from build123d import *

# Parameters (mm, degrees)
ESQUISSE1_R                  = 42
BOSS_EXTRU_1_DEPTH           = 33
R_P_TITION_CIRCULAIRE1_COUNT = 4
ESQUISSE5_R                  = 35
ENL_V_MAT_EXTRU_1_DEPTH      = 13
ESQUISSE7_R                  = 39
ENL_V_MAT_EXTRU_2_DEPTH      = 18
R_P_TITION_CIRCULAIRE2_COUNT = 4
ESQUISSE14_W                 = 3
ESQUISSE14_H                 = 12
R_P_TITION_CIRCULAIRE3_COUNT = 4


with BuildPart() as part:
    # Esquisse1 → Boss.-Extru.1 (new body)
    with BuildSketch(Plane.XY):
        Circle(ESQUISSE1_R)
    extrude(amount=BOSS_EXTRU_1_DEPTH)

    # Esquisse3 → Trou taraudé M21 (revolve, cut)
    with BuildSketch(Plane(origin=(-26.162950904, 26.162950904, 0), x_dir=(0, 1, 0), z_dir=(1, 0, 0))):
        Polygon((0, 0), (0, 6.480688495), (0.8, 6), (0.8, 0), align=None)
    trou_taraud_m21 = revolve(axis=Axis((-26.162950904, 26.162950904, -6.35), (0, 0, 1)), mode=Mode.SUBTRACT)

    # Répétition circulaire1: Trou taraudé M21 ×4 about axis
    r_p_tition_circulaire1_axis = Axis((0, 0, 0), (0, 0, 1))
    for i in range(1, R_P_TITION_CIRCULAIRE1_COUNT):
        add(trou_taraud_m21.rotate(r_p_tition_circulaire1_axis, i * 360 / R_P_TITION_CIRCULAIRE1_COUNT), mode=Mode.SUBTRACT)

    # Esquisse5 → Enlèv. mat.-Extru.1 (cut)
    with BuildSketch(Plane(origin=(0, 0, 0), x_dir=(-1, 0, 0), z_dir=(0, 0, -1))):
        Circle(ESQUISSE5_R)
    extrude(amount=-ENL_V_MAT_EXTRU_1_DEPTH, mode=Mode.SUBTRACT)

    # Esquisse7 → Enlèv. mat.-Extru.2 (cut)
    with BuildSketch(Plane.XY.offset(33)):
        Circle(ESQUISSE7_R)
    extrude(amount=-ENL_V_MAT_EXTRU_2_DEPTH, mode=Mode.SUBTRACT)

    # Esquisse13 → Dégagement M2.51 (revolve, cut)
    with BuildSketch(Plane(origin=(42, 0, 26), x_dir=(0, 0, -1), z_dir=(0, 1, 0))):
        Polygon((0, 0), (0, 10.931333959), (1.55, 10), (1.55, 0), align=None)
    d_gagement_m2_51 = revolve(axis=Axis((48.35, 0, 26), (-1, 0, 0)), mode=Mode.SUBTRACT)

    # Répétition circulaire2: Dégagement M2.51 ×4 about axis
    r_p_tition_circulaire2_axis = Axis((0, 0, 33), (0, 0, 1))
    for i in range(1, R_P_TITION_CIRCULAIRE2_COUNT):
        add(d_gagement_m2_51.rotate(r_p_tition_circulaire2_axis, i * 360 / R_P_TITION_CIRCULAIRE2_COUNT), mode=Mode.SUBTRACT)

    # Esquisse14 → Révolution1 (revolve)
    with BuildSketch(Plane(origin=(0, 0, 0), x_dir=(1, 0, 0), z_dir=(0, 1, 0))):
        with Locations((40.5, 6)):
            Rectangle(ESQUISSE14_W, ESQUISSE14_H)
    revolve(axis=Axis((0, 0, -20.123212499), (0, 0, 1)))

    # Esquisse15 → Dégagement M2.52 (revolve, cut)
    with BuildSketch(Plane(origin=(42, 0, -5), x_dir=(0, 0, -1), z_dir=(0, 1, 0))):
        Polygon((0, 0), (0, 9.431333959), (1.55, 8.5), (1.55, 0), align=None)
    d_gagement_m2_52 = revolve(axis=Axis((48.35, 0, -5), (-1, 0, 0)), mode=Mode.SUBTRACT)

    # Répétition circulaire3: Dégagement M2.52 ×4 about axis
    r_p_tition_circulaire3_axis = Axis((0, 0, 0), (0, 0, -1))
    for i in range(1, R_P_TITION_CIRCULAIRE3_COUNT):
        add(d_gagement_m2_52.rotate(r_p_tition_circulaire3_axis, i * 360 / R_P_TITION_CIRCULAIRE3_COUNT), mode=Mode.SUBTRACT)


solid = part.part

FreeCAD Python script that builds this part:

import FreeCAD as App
import Part
import Sketcher
from FreeCAD import Vector
Q = App.Units.Quantity


def add_polygon(sketch, points):
    """Adds a closed chain of lines whose ends are joined by coincident constraints."""
    first, n = sketch.GeometryCount, len(points)
    for a, b in zip(points, points[1:] + points[:1]):
        sketch.addGeometry(Part.LineSegment(App.Vector(*a, 0), App.Vector(*b, 0)), False)
    for i in range(n):
        sketch.addConstraint(Sketcher.Constraint("Coincident", first + i, 2, first + (i + 1) % n, 1))

doc = App.newDocument("Part")
body = doc.addObject("PartDesign::Body", "Body")

# Sketch on XY plane
sketch1 = body.newObject("Sketcher::SketchObject", "Sketch")
sketch1.AttachmentSupport = (doc.getObject("XY_Plane"), [""])
sketch1.MapMode = "FlatFace"
sketch1.addGeometry(Part.Circle(Vector(0, 0, 0), Vector(0, 0, 1), 42), False)
sketch1.addConstraint([
    Sketcher.Constraint("Coincident", 0, 3, -1, 1),
    Sketcher.Constraint("Diameter", 0, 84.0),
])
pad1 = body.newObject("PartDesign::Pad", "Pad")
pad1.Profile = sketch1
pad1.Length = 33

# Sketch on YZ plane
sketch2 = body.newObject("Sketcher::SketchObject", "Sketch001")
sketch2.AttachmentSupport = (doc.getObject("YZ_Plane"), [""])
sketch2.MapMode = "FlatFace"
sketch2.AttachmentOffset = App.Placement(Vector(0, 0, -26.162951), App.Rotation())
add_polygon(sketch2, [(26.2, 6.5), (26.2, 0), (27, 0), (27, 6)])  # lines 0-3
sketch2.addGeometry(Part.LineSegment(Vector(26.2, 0, 0), Vector(26.2, 6.5, 0)), True)  # axis
sketch2.addConstraint([
    Sketcher.Constraint("Vertical", 0),
    Sketcher.Constraint("Horizontal", 1),
    Sketcher.Constraint("Vertical", 2),
    Sketcher.Constraint("Vertical", 4),
    Sketcher.Constraint("Coincident", 4, 1, 0, 2),
    Sketcher.Constraint("PointOnObject", 0, 2, -1),
    Sketcher.Constraint("Equal", 0, 4),
    Sketcher.Constraint("DistanceY", 2, 1, 2, 2, 6.0),
    Sketcher.Constraint("Angle", 3, Q("149 deg")),
    Sketcher.Constraint("DistanceX", 1, 1, 1, 2, 0.8),
    Sketcher.Constraint("DistanceX", -1, 1, 0, 2, 26.162951),
])
groove = body.newObject("PartDesign::Groove", "Groove")
groove.Profile = sketch2
groove.ReferenceAxis = (sketch2, ["Axis0"])
groove.Angle = 360
doc.recompute()

polarpattern = body.newObject("PartDesign::PolarPattern", "PolarPattern")
polarpattern.Originals = [groove]
polarpattern.Axis = (doc.getObject("Z_Axis"), [""])
polarpattern.Angle = 360
polarpattern.Occurrences = 4
body.Tip = polarpattern

# Sketch on XY plane
sketch3 = body.newObject("Sketcher::SketchObject", "Sketch002")
sketch3.AttachmentSupport = (doc.getObject("XY_Plane"), [""])
sketch3.MapMode = "FlatFace"
sketch3.addGeometry(Part.Circle(Vector(0, 0, 0), Vector(0, 0, 1), 35), False)
sketch3.addConstraint([
    Sketcher.Constraint("Coincident", 0, 3, -1, 1),
    Sketcher.Constraint("Diameter", 0, 70.0),
])
pocket1 = body.newObject("PartDesign::Pocket", "Pocket")
pocket1.Profile = sketch3
pocket1.Length = 13
pocket1.Reversed = True

# Sketch on XY plane
sketch4 = body.newObject("Sketcher::SketchObject", "Sketch003")
sketch4.AttachmentSupport = (doc.getObject("XY_Plane"), [""])
sketch4.MapMode = "FlatFace"
sketch4.AttachmentOffset = App.Placement(Vector(0, 0, 33), App.Rotation())
sketch4.addGeometry(Part.Circle(Vector(0, 0, 0), Vector(0, 0, 1), 39), False)
sketch4.addConstraint([
    Sketcher.Constraint("Coincident", 0, 3, -1, 1),
    Sketcher.Constraint("Diameter", 0, 78.0),
])
pocket2 = body.newObject("PartDesign::Pocket", "Pocket001")
pocket2.Profile = sketch4
pocket2.Length = 18

# Sketch on XZ plane
sketch5 = body.newObject("Sketcher::SketchObject", "Sketch004")
sketch5.AttachmentSupport = (doc.getObject("XZ_Plane"), [""])
sketch5.MapMode = "FlatFace"
add_polygon(sketch5, [(31.1, 26), (42, 26), (42, 24.4), (32, 24.4)])  # lines 0-3
sketch5.addGeometry(Part.LineSegment(Vector(42, 26, 0), Vector(31.1, 26, 0)), True)  # axis
sketch5.addConstraint([
    Sketcher.Constraint("Horizontal", 0),
    Sketcher.Constraint("Vertical", 1),
    Sketcher.Constraint("Horizontal", 2),
    Sketcher.Constraint("Horizontal", 4),
    Sketcher.Constraint("Coincident", 4, 1, 0, 2),
    Sketcher.Constraint("Equal", 0, 4),
    Sketcher.Constraint("DistanceX", 2, 2, 2, 1, 10.0),
    Sketcher.Constraint("Angle", 3, Q("121 deg")),
    Sketcher.Constraint("DistanceX", -1, 1, 0, 2, 42.0),
    Sketcher.Constraint("DistanceY", -1, 1, 0, 2, 26.0),
    Sketcher.Constraint("DistanceY", 1, 2, 1, 1, 1.55),
])
groove2 = body.newObject("PartDesign::Groove", "Groove001")
groove2.Profile = sketch5
groove2.ReferenceAxis = (sketch5, ["Axis0"])
groove2.Angle = 360
doc.recompute()

polarpattern2 = body.newObject("PartDesign::PolarPattern", "PolarPattern001")
polarpattern2.Originals = [groove2]
polarpattern2.Axis = (doc.getObject("Z_Axis"), [""])
polarpattern2.Angle = 360
polarpattern2.Occurrences = 4
body.Tip = polarpattern2

# Sketch on XZ plane
sketch6 = body.newObject("Sketcher::SketchObject", "Sketch005")
sketch6.AttachmentSupport = (doc.getObject("XZ_Plane"), [""])
sketch6.MapMode = "FlatFace"
add_polygon(sketch6, [(39, -12), (39, 0), (42, 0), (42, -12)])  # lines 0-3
sketch6.addConstraint([
    Sketcher.Constraint("Vertical", 0),
    Sketcher.Constraint("Horizontal", 1),
    Sketcher.Constraint("Vertical", 2),
    Sketcher.Constraint("Horizontal", 3),
    Sketcher.Constraint("PointOnObject", 0, 2, -1),
    Sketcher.Constraint("DistanceX", 1, 1, 1, 2, 3.0),
    Sketcher.Constraint("DistanceY", 0, 1, 0, 2, 12.0),
    Sketcher.Constraint("DistanceX", -1, 1, 0, 2, 39.0),
])
revolution = body.newObject("PartDesign::Revolution", "Revolution")
revolution.Profile = sketch6
revolution.ReferenceAxis = (sketch6, ["V_Axis"])
revolution.Angle = 360

# Sketch on XZ plane
sketch7 = body.newObject("Sketcher::SketchObject", "Sketch006")
sketch7.AttachmentSupport = (doc.getObject("XZ_Plane"), [""])
sketch7.MapMode = "FlatFace"
add_polygon(sketch7, [(32.6, -5), (42, -5), (42, -6.5), (33.5, -6.5)])  # lines 0-3
sketch7.addGeometry(Part.LineSegment(Vector(42, -5, 0), Vector(32.6, -5, 0)), True)  # axis
sketch7.addConstraint([
    Sketcher.Constraint("Horizontal", 0),
    Sketcher.Constraint("Vertical", 1),
    Sketcher.Constraint("Horizontal", 2),
    Sketcher.Constraint("Horizontal", 4),
    Sketcher.Constraint("Coincident", 4, 1, 0, 2),
    Sketcher.Constraint("Equal", 0, 4),
    Sketcher.Constraint("Angle", 3, Q("121 deg")),
    Sketcher.Constraint("DistanceX", 2, 2, 2, 1, 8.5),
    Sketcher.Constraint("DistanceX", -1, 1, 0, 2, 42.0),
    Sketcher.Constraint("DistanceY", 0, 2, -1, 1, 5.0),
    Sketcher.Constraint("DistanceY", 1, 2, 1, 1, 1.55),
])
groove3 = body.newObject("PartDesign::Groove", "Groove002")
groove3.Profile = sketch7
groove3.ReferenceAxis = (sketch7, ["Axis0"])
groove3.Angle = 360
doc.recompute()

polarpattern3 = body.newObject("PartDesign::PolarPattern", "PolarPattern002")
polarpattern3.Originals = [groove3]
polarpattern3.Axis = (doc.getObject("Z_Axis"), [""])
polarpattern3.Angle = 360
polarpattern3.Occurrences = 4
body.Tip = polarpattern3

doc.recompute()
